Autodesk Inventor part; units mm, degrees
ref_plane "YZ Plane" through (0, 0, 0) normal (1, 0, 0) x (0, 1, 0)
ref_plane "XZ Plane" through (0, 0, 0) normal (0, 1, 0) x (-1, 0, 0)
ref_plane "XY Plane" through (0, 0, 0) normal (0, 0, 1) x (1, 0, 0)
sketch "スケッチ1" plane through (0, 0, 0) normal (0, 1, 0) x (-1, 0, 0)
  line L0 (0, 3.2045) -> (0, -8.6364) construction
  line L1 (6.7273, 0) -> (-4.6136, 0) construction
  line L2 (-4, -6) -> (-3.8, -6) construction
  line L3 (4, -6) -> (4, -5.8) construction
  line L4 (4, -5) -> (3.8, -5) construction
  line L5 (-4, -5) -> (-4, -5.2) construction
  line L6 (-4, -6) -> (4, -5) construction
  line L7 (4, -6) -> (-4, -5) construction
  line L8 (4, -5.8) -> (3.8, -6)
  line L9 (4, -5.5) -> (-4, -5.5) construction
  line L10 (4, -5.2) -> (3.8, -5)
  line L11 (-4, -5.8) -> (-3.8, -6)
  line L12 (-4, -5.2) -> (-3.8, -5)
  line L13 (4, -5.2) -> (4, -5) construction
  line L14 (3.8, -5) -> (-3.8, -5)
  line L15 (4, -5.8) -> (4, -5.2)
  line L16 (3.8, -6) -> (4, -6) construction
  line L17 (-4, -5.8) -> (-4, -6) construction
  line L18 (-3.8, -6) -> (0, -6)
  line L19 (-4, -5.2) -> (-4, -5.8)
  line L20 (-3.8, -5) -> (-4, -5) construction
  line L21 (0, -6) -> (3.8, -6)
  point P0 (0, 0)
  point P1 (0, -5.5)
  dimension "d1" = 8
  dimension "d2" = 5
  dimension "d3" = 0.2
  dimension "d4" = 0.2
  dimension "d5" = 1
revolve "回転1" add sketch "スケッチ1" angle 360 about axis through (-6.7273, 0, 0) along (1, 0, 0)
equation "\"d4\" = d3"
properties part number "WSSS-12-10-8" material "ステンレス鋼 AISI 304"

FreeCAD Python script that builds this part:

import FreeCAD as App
import Part
import Sketcher
Q = App.Units.Quantity

doc = App.newDocument("Part")
body = doc.addObject("PartDesign::Body", "Body")

sketch1 = body.newObject("Sketcher::SketchObject", "Sketch")
sketch1.AttachmentSupport = (doc.getObject("XZ_Plane"), [""])
sketch1.MapMode = "FlatFace"
sketch1.addGeometry([
    Part.LineSegment(App.Vector(-3.8, -6, 0), App.Vector(-4, -5.8, 0)),
    Part.LineSegment(App.Vector(-4, -5.8, 0), App.Vector(-4, -5.2, 0)),
    Part.LineSegment(App.Vector(-4, -5.2, 0), App.Vector(-3.8, -5, 0)),
    Part.LineSegment(App.Vector(-3.8, -5, 0), App.Vector(3.8, -5, 0)),
    Part.LineSegment(App.Vector(3.8, -5, 0), App.Vector(4, -5.2, 0)),
    Part.LineSegment(App.Vector(4, -5.2, 0), App.Vector(4, -5.8, 0)),
    Part.LineSegment(App.Vector(4, -5.8, 0), App.Vector(3.8, -6, 0)),
    Part.LineSegment(App.Vector(3.8, -6, 0), App.Vector(-3.8, -6, 0)),
], False)
sketch1.addConstraint([
    Sketcher.Constraint("Coincident", 0, 2, 1, 1),
    Sketcher.Constraint("Coincident", 1, 2, 2, 1),
    Sketcher.Constraint("Coincident", 2, 2, 3, 1),
    Sketcher.Constraint("Coincident", 3, 2, 4, 1),
    Sketcher.Constraint("Coincident", 4, 2, 5, 1),
    Sketcher.Constraint("Coincident", 5, 2, 6, 1),
    Sketcher.Constraint("Coincident", 6, 2, 7, 1),
    Sketcher.Constraint("Coincident", 7, 2, 0, 1),
    Sketcher.Constraint("Vertical", 1),
    Sketcher.Constraint("Horizontal", 3),
    Sketcher.Constraint("Vertical", 5),
    Sketcher.Constraint("Horizontal", 7),
    Sketcher.Constraint("Symmetric", 1, 2, 4, 2, -2),
    Sketcher.Constraint("Perpendicular", 0, 2),
    Sketcher.Constraint("Perpendicular", 2, 4),
    Sketcher.Constraint("Perpendicular", 4, 6),
    Sketcher.Constraint("Horizontal", 0, 2, 5, 2),
    Sketcher.Constraint("Vertical", 3, 2, 6, 2),
    Sketcher.Constraint("Vertical", 2, 2, 7, 2),
    Sketcher.Constraint("DistanceY", 2, 2, -1, 1, Q("5 mm")),
    Sketcher.Constraint("DistanceX", 1, 2, 4, 2, Q("8 mm")),
    Sketcher.Constraint("DistanceY", 6, 2, 3, 2, Q("1 mm")),
    Sketcher.Constraint("DistanceX", 1, 2, 2, 2, Q("0.2 mm")),
])
revolution = body.newObject("PartDesign::Revolution", "Revolution")
revolution.Profile = sketch1
revolution.ReferenceAxis = (sketch1, ["H_Axis"])
revolution.Angle = 360

doc.recompute()
